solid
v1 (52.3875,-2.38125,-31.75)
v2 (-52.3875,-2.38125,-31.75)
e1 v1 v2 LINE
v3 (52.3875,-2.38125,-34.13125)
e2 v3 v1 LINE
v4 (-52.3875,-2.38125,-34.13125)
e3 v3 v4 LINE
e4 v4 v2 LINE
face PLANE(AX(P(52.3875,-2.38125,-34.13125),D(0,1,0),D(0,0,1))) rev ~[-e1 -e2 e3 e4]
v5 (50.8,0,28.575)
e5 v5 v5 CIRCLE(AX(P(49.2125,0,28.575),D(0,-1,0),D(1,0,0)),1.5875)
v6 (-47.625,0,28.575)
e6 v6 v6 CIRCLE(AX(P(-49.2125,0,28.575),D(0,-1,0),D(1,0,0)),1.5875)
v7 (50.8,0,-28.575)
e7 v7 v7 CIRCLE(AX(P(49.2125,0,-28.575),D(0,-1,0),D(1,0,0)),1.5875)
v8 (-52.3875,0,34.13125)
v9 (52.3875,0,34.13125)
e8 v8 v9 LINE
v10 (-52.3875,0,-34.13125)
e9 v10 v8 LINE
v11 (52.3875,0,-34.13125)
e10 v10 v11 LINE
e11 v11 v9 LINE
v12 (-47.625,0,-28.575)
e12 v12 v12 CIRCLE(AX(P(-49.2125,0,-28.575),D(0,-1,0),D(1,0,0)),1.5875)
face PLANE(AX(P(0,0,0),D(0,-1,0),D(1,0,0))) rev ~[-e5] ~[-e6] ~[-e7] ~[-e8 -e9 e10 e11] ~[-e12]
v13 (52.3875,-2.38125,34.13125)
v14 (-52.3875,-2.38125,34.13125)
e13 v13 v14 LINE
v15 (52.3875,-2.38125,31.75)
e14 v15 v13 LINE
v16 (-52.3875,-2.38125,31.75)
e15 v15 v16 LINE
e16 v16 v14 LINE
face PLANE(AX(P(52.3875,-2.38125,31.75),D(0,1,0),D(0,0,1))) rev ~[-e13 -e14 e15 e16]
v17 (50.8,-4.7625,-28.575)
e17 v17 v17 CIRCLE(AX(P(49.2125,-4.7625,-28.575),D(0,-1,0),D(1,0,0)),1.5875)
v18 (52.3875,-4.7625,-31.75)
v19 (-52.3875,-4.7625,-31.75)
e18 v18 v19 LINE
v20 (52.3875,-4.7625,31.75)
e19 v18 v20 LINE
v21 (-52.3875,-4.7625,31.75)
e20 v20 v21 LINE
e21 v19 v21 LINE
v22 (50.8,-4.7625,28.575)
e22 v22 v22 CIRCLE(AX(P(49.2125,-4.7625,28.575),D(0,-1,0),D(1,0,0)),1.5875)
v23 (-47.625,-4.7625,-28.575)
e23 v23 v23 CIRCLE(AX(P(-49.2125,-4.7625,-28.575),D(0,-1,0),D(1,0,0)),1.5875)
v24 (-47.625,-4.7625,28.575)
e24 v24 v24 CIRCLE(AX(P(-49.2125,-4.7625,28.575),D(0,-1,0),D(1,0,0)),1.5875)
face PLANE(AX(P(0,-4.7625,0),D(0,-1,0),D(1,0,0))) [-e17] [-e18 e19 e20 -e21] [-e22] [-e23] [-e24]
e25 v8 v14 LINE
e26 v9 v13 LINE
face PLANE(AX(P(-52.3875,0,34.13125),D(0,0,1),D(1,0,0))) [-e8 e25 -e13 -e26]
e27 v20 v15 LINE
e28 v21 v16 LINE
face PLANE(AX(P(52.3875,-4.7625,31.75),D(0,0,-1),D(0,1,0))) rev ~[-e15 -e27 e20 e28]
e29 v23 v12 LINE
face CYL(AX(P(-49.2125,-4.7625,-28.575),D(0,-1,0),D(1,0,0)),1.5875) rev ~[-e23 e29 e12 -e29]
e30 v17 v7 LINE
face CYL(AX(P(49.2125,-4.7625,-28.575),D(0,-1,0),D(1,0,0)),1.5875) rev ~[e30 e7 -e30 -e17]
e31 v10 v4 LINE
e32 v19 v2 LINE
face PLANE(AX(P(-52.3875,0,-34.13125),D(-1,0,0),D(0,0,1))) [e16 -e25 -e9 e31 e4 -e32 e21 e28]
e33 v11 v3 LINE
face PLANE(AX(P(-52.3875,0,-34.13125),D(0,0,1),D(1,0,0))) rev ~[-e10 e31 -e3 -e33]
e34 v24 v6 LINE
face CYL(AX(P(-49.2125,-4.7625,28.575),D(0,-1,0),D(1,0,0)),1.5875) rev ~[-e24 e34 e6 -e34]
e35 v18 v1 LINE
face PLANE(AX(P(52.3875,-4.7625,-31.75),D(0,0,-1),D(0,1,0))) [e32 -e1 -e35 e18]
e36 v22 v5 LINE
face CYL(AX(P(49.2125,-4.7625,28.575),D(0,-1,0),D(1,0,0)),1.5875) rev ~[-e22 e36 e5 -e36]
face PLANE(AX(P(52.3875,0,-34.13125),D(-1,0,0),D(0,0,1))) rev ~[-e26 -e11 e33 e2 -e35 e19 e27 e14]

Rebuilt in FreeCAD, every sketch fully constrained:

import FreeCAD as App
import Part
import Sketcher

V = App.Vector
Q = App.Units.Quantity


def add_polygon(sketch, points):
    """Adds a closed chain of lines whose ends are joined by coincident constraints."""
    first, n = sketch.GeometryCount, len(points)
    for a, b in zip(points, points[1:] + points[:1]):
        sketch.addGeometry(Part.LineSegment(App.Vector(*a, 0), App.Vector(*b, 0)), False)
    for i in range(n):
        sketch.addConstraint(Sketcher.Constraint("Coincident", first + i, 2, first + (i + 1) % n, 1))

doc = App.newDocument("Part")
params = doc.addObject("Spreadsheet::Sheet", "Params")
for row, (alias, value) in enumerate([
    ("sketch1_width", "4.125 in"),
    ("sketch1_height", "2.6875 in"),
    ("pad1_length", "0.1875 in"),
    ("sketch2_width", "0.09375 in"),
    ("sketch3_diameter", "0.125 in"),
], start=1):
    params.set(f"A{row}", alias)
    params.set(f"B{row}", "=" + value)
    params.setAlias(f"B{row}", alias)

body = doc.addObject("PartDesign::Body", "Body")

# Sketch on XZ plane
sketch1 = body.newObject("Sketcher::SketchObject", "Sketch")
sketch1.AttachmentSupport = (doc.getObject("XZ_Plane"), [""])
sketch1.MapMode = "FlatFace"
add_polygon(sketch1, [(-52, 34), (-52, -34), (52, -34), (52, 34)])  # lines 0-3
sketch1.addConstraint([
    Sketcher.Constraint("Vertical", 0),
    Sketcher.Constraint("Horizontal", 1),
    Sketcher.Constraint("Vertical", 2),
    Sketcher.Constraint("Horizontal", 3),
    Sketcher.Constraint("Symmetric", 0, 2, 2, 2, -1, 1),
    Sketcher.Constraint("DistanceX", 1, 1, 1, 2, Q("4.125 in")),
    Sketcher.Constraint("DistanceY", 0, 2, 0, 1, Q("2.6875 in")),
])
sketch1.setExpression("Constraints[9]", "Params.sketch1_width")
sketch1.setExpression("Constraints[10]", "Params.sketch1_height")
pad1 = body.newObject("PartDesign::Pad", "Pad")
pad1.Profile = sketch1
pad1.setExpression("Length", "Params.pad1_length")

# Sketch on YZ plane
sketch2 = body.newObject("Sketcher::SketchObject", "Sketch001")
sketch2.AttachmentSupport = (doc.getObject("YZ_Plane"), [""])
sketch2.MapMode = "FlatFace"
sketch2.AttachmentOffset = App.Placement(V(0, 0, 2.0625 * 25.4), App.Rotation())
add_polygon(sketch2, [(-4.8, 34.1), (-4.8, 31.8), (-2.4, 31.8), (-2.4, 34.1)])  # lines 0-3
add_polygon(sketch2, [(-4.8, -31.8), (-4.8, -34.1), (-2.4, -34.1), (-2.4, -31.8)])  # lines 4-7
sketch2.addConstraint([
    Sketcher.Constraint("Vertical", 0),
    Sketcher.Constraint("Horizontal", 1),
    Sketcher.Constraint("Vertical", 2),
    Sketcher.Constraint("Horizontal", 3),
    Sketcher.Constraint("Vertical", 4),
    Sketcher.Constraint("Horizontal", 5),
    Sketcher.Constraint("Vertical", 6),
    Sketcher.Constraint("Horizontal", 7),
    Sketcher.Constraint("Symmetric", 3, 2, 4, 2, -1),
    Sketcher.Constraint("Symmetric", 1, 2, 6, 2, -1),
    Sketcher.Constraint("Equal", 7, 0),
    Sketcher.Constraint("DistanceY", 6, 2, 1, 2, Q("2.5 in")),
    Sketcher.Constraint("DistanceX", 1, 1, 1, 2, Q("0.09375 in")),
    Sketcher.Constraint("DistanceX", 0, 2, -1, 1, Q("0.1875 in")),
])
sketch2.setExpression("Constraints[20]", "Params.sketch2_width")
pocket1 = body.newObject("PartDesign::Pocket", "Pocket")
pocket1.Profile = sketch2
pocket1.Type = "ThroughAll"

# Sketch on XZ plane
sketch3 = body.newObject("Sketcher::SketchObject", "Sketch002")
sketch3.AttachmentSupport = (doc.getObject("XZ_Plane"), [""])
sketch3.MapMode = "FlatFace"
sketch3.AttachmentOffset = App.Placement(V(0, 0, 0.1875 * 25.4), App.Rotation())
sketch3.addGeometry([
    Part.Circle(V(-49.2, 28.6, 0), V(0, 0, 1), 1.6),
    Part.Circle(V(49.2, 28.6, 0), V(0, 0, 1), 1.6),
    Part.Circle(V(-49.2, -28.6, 0), V(0, 0, 1), 1.6),
    Part.Circle(V(49.2, -28.6, 0), V(0, 0, 1), 1.6),
], False)
sketch3.addConstraint([
    Sketcher.Constraint("Equal", 0, 1),
    Sketcher.Constraint("Equal", 1, 2),
    Sketcher.Constraint("Equal", 2, 3),
    Sketcher.Constraint("Symmetric", 1, 3, 2, 3, -1, 1),
    Sketcher.Constraint("Symmetric", 0, 3, 3, 3, -1, 1),
    Sketcher.Constraint("Symmetric", 0, 3, 1, 3, -2),
    Sketcher.Constraint("Diameter", 0, Q("0.125 in")),
    Sketcher.Constraint("DistanceY", 2, 3, 0, 3, Q("2.25 in")),
    Sketcher.Constraint("DistanceX", 0, 3, -1, 1, Q("1.9375 in")),
])
sketch3.setExpression("Constraints[6]", "Params.sketch3_diameter")
pocket2 = body.newObject("PartDesign::Pocket", "Pocket001")
pocket2.Profile = sketch3
pocket2.Type = "ThroughAll"

doc.recompute()
